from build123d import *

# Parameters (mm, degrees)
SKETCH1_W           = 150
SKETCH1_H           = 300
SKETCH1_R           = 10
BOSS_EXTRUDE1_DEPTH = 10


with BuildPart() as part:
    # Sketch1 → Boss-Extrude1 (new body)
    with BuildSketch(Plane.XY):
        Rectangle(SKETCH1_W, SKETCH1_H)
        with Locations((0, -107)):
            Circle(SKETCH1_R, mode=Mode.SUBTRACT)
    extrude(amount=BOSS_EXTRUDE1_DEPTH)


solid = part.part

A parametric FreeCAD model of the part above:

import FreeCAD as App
import Part
import Sketcher
from FreeCAD import Vector
Q = App.Units.Quantity


def add_polygon(sketch, points):
    """Adds a closed chain of lines whose ends are joined by coincident constraints."""
    first, n = sketch.GeometryCount, len(points)
    for a, b in zip(points, points[1:] + points[:1]):
        sketch.addGeometry(Part.LineSegment(App.Vector(*a, 0), App.Vector(*b, 0)), False)
    for i in range(n):
        sketch.addConstraint(Sketcher.Constraint("Coincident", first + i, 2, first + (i + 1) % n, 1))

doc = App.newDocument("Part")
body = doc.addObject("PartDesign::Body", "Body")

sketch1 = doc.addObject("Sketcher::SketchObject", "Sketch")
body.addObject(sketch1)
sketch1.AttachmentSupport = (doc.XY_Plane, [""])
sketch1.MapMode = "FlatFace"
add_polygon(sketch1, [(-75, 150), (-75, -150), (75, -150), (75, 150)])
sketch1.addGeometry(Part.Circle(Vector(0, -107, 0), Vector(0, 0, 1), 10), False)
sketch1.addConstraint(Sketcher.Constraint("Vertical", 0))
sketch1.addConstraint(Sketcher.Constraint("Horizontal", 1))
sketch1.addConstraint(Sketcher.Constraint("Vertical", 2))
sketch1.addConstraint(Sketcher.Constraint("Horizontal", 3))
sketch1.addConstraint(Sketcher.Constraint("Symmetric", 0, 2, 2, 2, -1, 1))
sketch1.addConstraint(Sketcher.Constraint("PointOnObject", 4, 3, -2))
sketch1.addConstraint(Sketcher.Constraint("Diameter", 4, Q("20 mm")))
sketch1.addConstraint(Sketcher.Constraint("DistanceX", 1, 1, 1, 2, Q("150 mm")))
sketch1.addConstraint(Sketcher.Constraint("DistanceY", 0, 2, 0, 1, Q("300 mm")))
sketch1.addConstraint(Sketcher.Constraint("DistanceY", 4, 3, -1, 1, Q("107 mm")))
pad1 = doc.addObject("PartDesign::Pad", "Pad")
body.addObject(pad1)
pad1.Profile = sketch1
pad1.Length = 10

doc.recompute()
